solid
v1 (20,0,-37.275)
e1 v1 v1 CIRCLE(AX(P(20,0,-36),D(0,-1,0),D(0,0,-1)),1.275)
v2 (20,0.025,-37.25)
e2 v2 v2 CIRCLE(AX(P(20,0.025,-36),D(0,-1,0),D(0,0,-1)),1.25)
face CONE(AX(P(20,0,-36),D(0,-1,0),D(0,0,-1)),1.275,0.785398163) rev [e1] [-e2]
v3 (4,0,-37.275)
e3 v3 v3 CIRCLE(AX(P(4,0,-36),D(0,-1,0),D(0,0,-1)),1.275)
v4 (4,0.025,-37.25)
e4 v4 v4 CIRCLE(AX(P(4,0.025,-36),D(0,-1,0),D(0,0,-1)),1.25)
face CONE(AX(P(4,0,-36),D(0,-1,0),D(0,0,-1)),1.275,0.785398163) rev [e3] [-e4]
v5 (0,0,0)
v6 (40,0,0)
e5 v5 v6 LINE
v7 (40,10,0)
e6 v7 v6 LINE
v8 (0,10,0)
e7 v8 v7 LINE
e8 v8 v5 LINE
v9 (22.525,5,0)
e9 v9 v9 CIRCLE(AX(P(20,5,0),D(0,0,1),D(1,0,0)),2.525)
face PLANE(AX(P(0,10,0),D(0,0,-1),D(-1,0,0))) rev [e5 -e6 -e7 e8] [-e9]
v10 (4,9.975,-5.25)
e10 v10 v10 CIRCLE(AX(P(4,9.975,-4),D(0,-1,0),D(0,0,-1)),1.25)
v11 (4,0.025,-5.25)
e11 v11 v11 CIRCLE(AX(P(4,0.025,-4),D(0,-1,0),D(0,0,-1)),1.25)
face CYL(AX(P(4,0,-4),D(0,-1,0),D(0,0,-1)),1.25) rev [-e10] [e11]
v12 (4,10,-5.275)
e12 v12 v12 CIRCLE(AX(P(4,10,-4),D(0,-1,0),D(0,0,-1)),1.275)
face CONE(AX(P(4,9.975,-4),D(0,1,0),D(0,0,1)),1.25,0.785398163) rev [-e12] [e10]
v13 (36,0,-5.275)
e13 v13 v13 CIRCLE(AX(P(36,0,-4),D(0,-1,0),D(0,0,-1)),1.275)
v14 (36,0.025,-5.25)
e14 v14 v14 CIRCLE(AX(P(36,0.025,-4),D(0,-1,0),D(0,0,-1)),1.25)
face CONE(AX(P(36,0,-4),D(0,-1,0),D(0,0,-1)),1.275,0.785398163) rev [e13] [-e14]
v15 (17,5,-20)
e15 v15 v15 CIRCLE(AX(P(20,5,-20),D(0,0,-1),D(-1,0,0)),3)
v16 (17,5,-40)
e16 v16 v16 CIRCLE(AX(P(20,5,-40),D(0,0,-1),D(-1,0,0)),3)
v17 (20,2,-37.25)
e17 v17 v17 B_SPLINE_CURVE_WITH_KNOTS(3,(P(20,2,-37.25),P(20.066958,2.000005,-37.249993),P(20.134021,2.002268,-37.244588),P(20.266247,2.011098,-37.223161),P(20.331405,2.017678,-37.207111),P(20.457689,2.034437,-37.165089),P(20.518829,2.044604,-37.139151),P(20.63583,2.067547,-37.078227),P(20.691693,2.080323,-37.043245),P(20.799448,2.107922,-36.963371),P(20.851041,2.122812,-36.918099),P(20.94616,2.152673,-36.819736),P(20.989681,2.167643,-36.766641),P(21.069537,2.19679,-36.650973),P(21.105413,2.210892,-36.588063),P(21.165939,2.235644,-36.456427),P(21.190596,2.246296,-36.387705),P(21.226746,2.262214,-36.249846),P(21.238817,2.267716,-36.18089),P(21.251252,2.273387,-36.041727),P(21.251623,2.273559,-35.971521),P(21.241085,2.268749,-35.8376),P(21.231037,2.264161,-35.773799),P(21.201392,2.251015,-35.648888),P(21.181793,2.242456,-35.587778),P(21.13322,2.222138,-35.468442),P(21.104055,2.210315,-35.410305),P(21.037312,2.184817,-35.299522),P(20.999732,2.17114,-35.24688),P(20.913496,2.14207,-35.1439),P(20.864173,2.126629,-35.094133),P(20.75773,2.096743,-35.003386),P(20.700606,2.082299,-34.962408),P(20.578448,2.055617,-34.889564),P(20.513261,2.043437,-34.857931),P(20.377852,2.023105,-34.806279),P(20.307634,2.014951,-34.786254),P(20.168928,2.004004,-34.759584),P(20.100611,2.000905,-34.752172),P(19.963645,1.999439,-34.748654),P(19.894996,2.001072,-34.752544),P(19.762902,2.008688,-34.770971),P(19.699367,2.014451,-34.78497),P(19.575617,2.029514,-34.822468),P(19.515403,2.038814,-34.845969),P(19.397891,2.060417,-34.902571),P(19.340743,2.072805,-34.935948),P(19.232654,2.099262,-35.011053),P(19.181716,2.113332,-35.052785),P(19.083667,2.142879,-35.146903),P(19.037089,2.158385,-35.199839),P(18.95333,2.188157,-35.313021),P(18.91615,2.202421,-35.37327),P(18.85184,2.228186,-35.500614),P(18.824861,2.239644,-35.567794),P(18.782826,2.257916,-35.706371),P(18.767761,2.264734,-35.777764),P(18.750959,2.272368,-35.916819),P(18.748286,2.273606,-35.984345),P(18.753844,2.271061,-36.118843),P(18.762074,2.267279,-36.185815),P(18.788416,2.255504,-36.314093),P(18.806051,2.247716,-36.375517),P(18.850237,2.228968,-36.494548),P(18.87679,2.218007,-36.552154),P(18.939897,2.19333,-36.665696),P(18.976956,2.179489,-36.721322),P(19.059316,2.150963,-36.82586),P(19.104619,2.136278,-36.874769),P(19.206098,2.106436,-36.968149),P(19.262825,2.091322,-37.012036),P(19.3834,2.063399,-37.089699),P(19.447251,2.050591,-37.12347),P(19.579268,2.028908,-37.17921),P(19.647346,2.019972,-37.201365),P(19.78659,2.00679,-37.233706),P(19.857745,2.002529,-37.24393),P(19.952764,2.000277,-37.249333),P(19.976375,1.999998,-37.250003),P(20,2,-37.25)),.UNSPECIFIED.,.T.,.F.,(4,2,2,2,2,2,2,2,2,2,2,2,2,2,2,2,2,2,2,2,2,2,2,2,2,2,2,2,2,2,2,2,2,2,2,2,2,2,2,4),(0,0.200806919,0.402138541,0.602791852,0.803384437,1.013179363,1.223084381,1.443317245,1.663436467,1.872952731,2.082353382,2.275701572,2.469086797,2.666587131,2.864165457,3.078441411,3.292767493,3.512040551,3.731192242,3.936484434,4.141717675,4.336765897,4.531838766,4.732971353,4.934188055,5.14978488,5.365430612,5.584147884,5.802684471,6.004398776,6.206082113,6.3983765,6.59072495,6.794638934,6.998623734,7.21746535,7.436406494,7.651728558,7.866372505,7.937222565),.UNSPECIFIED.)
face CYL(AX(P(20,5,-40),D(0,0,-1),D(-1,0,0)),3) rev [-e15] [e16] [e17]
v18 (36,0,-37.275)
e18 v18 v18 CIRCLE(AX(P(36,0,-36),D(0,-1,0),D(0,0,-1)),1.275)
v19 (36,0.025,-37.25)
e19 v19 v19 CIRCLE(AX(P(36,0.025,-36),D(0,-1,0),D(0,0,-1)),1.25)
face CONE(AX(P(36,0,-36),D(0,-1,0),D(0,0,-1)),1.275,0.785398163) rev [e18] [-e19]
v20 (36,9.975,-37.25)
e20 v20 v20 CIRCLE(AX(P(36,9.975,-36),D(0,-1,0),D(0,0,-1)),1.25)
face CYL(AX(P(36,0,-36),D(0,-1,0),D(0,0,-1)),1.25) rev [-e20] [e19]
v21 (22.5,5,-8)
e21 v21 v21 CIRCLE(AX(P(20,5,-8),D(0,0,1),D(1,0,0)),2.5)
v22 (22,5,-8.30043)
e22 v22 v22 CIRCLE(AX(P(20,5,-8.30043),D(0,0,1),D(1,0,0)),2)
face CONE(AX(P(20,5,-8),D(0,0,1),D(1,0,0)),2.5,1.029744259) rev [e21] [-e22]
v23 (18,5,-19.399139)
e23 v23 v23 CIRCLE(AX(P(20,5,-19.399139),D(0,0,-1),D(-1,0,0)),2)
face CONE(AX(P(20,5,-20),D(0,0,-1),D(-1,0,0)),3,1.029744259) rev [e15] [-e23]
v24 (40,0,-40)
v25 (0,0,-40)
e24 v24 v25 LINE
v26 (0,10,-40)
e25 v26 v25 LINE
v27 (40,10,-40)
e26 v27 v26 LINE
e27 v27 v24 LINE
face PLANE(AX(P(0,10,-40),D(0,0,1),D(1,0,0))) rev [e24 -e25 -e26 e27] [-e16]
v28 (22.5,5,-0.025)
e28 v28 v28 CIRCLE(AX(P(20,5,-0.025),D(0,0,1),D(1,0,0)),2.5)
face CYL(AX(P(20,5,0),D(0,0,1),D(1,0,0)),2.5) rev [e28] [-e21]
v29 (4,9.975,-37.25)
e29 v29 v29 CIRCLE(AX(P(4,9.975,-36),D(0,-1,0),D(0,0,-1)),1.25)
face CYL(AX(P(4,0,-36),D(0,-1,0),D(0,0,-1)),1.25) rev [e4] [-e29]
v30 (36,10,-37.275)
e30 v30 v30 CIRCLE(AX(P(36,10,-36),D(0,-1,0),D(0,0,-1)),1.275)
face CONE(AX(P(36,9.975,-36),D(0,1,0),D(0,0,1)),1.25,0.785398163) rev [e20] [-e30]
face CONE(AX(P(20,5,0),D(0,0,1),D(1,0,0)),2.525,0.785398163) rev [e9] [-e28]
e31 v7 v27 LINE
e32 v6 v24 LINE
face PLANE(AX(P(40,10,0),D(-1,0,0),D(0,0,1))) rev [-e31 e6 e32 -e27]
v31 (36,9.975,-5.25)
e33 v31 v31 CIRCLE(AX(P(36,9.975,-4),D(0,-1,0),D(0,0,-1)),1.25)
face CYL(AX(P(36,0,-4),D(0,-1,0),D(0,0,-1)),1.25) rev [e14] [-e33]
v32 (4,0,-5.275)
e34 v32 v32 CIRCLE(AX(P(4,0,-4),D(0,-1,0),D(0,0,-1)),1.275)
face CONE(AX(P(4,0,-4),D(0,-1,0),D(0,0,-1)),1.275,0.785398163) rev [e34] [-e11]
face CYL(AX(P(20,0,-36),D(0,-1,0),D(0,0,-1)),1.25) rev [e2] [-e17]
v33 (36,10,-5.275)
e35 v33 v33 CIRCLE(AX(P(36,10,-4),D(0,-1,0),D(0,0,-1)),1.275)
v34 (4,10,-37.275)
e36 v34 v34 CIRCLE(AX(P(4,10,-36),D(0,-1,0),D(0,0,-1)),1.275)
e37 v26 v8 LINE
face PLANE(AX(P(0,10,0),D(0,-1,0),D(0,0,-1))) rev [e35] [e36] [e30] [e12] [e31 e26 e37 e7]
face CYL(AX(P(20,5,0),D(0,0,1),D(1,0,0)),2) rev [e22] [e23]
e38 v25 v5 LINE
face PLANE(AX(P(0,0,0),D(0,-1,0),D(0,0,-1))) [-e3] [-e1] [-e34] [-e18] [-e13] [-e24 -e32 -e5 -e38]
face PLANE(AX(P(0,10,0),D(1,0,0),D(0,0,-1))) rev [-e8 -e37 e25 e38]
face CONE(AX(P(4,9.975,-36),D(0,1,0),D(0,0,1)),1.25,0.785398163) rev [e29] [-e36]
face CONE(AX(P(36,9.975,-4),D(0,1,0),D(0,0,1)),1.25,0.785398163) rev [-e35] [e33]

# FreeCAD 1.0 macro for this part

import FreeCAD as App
import Part
import Sketcher
from FreeCAD import Vector
Q = App.Units.Quantity


def add_polygon(sketch, points):
    """Adds a closed chain of lines whose ends are joined by coincident constraints."""
    first, n = sketch.GeometryCount, len(points)
    for a, b in zip(points, points[1:] + points[:1]):
        sketch.addGeometry(Part.LineSegment(App.Vector(*a, 0), App.Vector(*b, 0)), False)
    for i in range(n):
        sketch.addConstraint(Sketcher.Constraint("Coincident", first + i, 2, first + (i + 1) % n, 1))

doc = App.newDocument("Part")
body = doc.addObject("PartDesign::Body", "Body")

# Sketch on XZ plane
sketch1 = body.newObject("Sketcher::SketchObject", "Sketch")
sketch1.AttachmentSupport = (doc.getObject("XZ_Plane"), [""])
sketch1.MapMode = "FlatFace"
add_polygon(sketch1, [(0, -40), (0, 0), (40, 0), (40, -40)])  # lines 0-3
sketch1.addConstraint(Sketcher.Constraint("Vertical", 0))
sketch1.addConstraint(Sketcher.Constraint("Horizontal", 1))
sketch1.addConstraint(Sketcher.Constraint("Vertical", 2))
sketch1.addConstraint(Sketcher.Constraint("Horizontal", 3))
sketch1.addConstraint(Sketcher.Constraint("Coincident", 0, 2, -1, 1))
sketch1.addConstraint(Sketcher.Constraint("Equal", 3, 0))
sketch1.addConstraint(Sketcher.Constraint("DistanceX", 1, 1, 1, 2, Q("40 mm")))
pad1 = body.newObject("PartDesign::Pad", "Pad")
pad1.Profile = sketch1
pad1.Length = 10
pad1.Reversed = True

# Sketch on XY plane
sketch2 = body.newObject("Sketcher::SketchObject", "Sketch001")
sketch2.AttachmentSupport = (doc.getObject("XY_Plane"), [""])
sketch2.MapMode = "FlatFace"
sketch2.addGeometry(Part.Circle(Vector(20, 5, 0), Vector(0, 0, 1), 2), False)
sketch2.addConstraint(Sketcher.Constraint("Diameter", 0, Q("4 mm")))
sketch2.addConstraint(Sketcher.Constraint("DistanceX", -1, 1, 0, 3, Q("20 mm")))
sketch2.addConstraint(Sketcher.Constraint("DistanceY", -1, 1, 0, 3, Q("5 mm")))
doc.recompute()
hole = body.newObject("PartDesign::Hole", "Hole")
hole.Profile = sketch2
hole.ThreadType = "None"
hole.Diameter = 4
hole.DepthType = "ThroughAll"

# Sketch on XY plane
sketch3 = body.newObject("Sketcher::SketchObject", "Sketch002")
sketch3.AttachmentSupport = (doc.getObject("XY_Plane"), [""])
sketch3.MapMode = "FlatFace"
sketch3.addGeometry(Part.Circle(Vector(20, 5, 0), Vector(0, 0, 1), 2.5), False)
sketch3.addConstraint(Sketcher.Constraint("Diameter", 0, Q("5 mm")))
sketch3.addConstraint(Sketcher.Constraint("DistanceX", -1, 1, 0, 3, Q("20 mm")))
sketch3.addConstraint(Sketcher.Constraint("DistanceY", -1, 1, 0, 3, Q("5 mm")))
doc.recompute()
hole2 = body.newObject("PartDesign::Hole", "Hole001")
hole2.Profile = sketch3
hole2.ThreadType = "None"
hole2.Diameter = 5
hole2.DepthType = "Dimension"
hole2.Depth = 8
hole2.DrillPoint = "Angled"
hole2.DrillPointAngle = 118
hole2.HoleCutType = "Countersink"
hole2.HoleCutDiameter = 5.05
hole2.HoleCutCountersinkAngle = 90

# Sketch on XY plane
sketch4 = body.newObject("Sketcher::SketchObject", "Sketch003")
sketch4.AttachmentSupport = (doc.getObject("XY_Plane"), [""])
sketch4.MapMode = "FlatFace"
sketch4.AttachmentOffset = App.Placement(Vector(0, 0, -40), App.Rotation())
sketch4.addGeometry(Part.Circle(Vector(20, 5, 0), Vector(0, 0, 1), 3), False)
sketch4.addConstraint(Sketcher.Constraint("Diameter", 0, Q("6 mm")))
sketch4.addConstraint(Sketcher.Constraint("DistanceX", -1, 1, 0, 3, Q("20 mm")))
sketch4.addConstraint(Sketcher.Constraint("DistanceY", -1, 1, 0, 3, Q("5 mm")))
doc.recompute()
hole3 = body.newObject("PartDesign::Hole", "Hole002")
hole3.Profile = sketch4
hole3.ThreadType = "None"
hole3.Diameter = 6
hole3.DepthType = "Dimension"
hole3.Depth = 20
hole3.DrillPoint = "Angled"
hole3.DrillPointAngle = 118
hole3.Reversed = True

# Sketch on YZ plane
sketch5 = body.newObject("Sketcher::SketchObject", "Sketch004")
sketch5.AttachmentSupport = (doc.getObject("YZ_Plane"), [""])
sketch5.MapMode = "FlatFace"
sketch5.AttachmentOffset = App.Placement(Vector(0, 0, 4), App.Rotation())
add_polygon(sketch5, [(10, -4), (0, -4), (0, -5.275), (0.025, -5.25), (9.975, -5.25), (10, -5.275)])  # lines 0-5
sketch5.addGeometry(Part.LineSegment(Vector(0, -4, 0), Vector(10, -4, 0)), True)  # axis
sketch5.addConstraint(Sketcher.Constraint("Horizontal", 0))
sketch5.addConstraint(Sketcher.Constraint("Vertical", 1))
sketch5.addConstraint(Sketcher.Constraint("Horizontal", 3))
sketch5.addConstraint(Sketcher.Constraint("Vertical", 5))
sketch5.addConstraint(Sketcher.Constraint("Horizontal", 6))
sketch5.addConstraint(Sketcher.Constraint("Coincident", 6, 1, 0, 2))
sketch5.addConstraint(Sketcher.Constraint("PointOnObject", 0, 2, -2))
sketch5.addConstraint(Sketcher.Constraint("Perpendicular", 2, 4))
sketch5.addConstraint(Sketcher.Constraint("Horizontal", 1, 2, 4, 2))
sketch5.addConstraint(Sketcher.Constraint("Vertical", 4, 2, 6, 2))
sketch5.addConstraint(Sketcher.Constraint("Equal", 2, 4))
sketch5.addConstraint(Sketcher.Constraint("DistanceX", 0, 2, 0, 1, Q("10 mm")))
sketch5.addConstraint(Sketcher.Constraint("DistanceY", 0, 2, -1, 1, Q("4 mm")))
sketch5.addConstraint(Sketcher.Constraint("DistanceX", 3, 1, 3, 2, Q("9.95 mm")))
sketch5.addConstraint(Sketcher.Constraint("DistanceY", 1, 2, 1, 1, Q("1.275 mm")))
groove = body.newObject("PartDesign::Groove", "Groove")
groove.Profile = sketch5
groove.ReferenceAxis = (sketch5, ["Axis0"])
groove.Angle = 360
doc.recompute()

linearpattern = body.newObject("PartDesign::LinearPattern", "LinearPattern")
linearpattern.Originals = [groove]
linearpattern.Direction = (doc.getObject("X_Axis"), [""])
linearpattern.Mode = "offset"
linearpattern.Offset = 32
linearpattern.Occurrences = 2
body.Tip = linearpattern
doc.recompute()

datumline = body.newObject("PartDesign::Line", "DatumLine")
datumline.Placement = App.Placement(Vector(0, 0, 0), App.Rotation(Vector(0, 0, 1), Vector(0.707106781, 0, -0.707106781)))
linearpattern2 = body.newObject("PartDesign::LinearPattern", "LinearPattern001")
linearpattern2.Originals = [groove]
linearpattern2.Direction = (datumline, [""])
linearpattern2.Mode = "offset"
linearpattern2.Offset = 45.254834
linearpattern2.Occurrences = 2
body.Tip = linearpattern2
doc.recompute()

linearpattern3 = body.newObject("PartDesign::LinearPattern", "LinearPattern002")
linearpattern3.Originals = [groove]
linearpattern3.Direction = (doc.getObject("Z_Axis"), [""])
linearpattern3.Mode = "offset"
linearpattern3.Offset = 32
linearpattern3.Occurrences = 2
linearpattern3.Reversed = True
body.Tip = linearpattern3

# Sketch on XZ plane
sketch6 = body.newObject("Sketcher::SketchObject", "Sketch005")
sketch6.AttachmentSupport = (doc.getObject("XZ_Plane"), [""])
sketch6.MapMode = "FlatFace"
sketch6.addGeometry(Part.Circle(Vector(20, -36, 0), Vector(0, 0, 1), 1.2), False)
sketch6.addConstraint(Sketcher.Constraint("Diameter", 0, Q("2.5 mm")))
sketch6.addConstraint(Sketcher.Constraint("DistanceX", -1, 1, 0, 3, Q("20 mm")))
sketch6.addConstraint(Sketcher.Constraint("DistanceY", 0, 3, -1, 1, Q("36 mm")))
doc.recompute()
hole4 = body.newObject("PartDesign::Hole", "Hole003")
hole4.Profile = sketch6
hole4.ThreadType = "None"
hole4.Diameter = 2.5
hole4.DepthType = "Dimension"
hole4.Depth = 5
hole4.DrillPoint = "Angled"
hole4.DrillPointAngle = 118
hole4.HoleCutType = "Countersink"
hole4.HoleCutDiameter = 2.55
hole4.HoleCutCountersinkAngle = 90

doc.recompute()
